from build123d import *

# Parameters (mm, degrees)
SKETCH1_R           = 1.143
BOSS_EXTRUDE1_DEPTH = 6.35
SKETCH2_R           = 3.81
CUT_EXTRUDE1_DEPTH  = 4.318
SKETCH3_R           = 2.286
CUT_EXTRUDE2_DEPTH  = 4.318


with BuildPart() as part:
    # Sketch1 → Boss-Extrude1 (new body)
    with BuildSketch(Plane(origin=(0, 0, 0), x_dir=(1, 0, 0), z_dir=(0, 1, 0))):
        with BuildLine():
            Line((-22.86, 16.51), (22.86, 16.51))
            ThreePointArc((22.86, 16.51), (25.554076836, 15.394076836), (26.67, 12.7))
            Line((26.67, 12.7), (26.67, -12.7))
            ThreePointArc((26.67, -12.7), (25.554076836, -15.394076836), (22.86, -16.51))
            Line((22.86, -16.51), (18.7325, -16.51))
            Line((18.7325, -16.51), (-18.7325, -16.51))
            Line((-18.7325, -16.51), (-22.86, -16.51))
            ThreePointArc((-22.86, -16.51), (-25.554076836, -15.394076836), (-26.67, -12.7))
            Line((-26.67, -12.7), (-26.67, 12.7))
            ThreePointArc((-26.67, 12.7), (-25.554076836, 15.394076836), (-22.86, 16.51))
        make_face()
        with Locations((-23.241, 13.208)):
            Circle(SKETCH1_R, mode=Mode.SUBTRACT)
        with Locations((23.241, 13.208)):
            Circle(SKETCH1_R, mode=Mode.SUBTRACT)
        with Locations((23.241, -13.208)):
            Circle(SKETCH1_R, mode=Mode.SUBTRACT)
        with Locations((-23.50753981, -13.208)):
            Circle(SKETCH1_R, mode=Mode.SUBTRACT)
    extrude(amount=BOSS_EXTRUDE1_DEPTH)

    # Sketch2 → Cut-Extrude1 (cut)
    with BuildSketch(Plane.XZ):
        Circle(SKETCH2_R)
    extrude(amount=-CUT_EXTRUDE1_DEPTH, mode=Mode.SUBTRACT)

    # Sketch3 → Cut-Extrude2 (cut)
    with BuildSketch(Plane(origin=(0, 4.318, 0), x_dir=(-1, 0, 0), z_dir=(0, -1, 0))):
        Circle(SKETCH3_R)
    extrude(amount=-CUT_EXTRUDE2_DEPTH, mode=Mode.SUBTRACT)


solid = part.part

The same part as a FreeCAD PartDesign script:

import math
import FreeCAD as App
import Part
import Sketcher
from FreeCAD import Vector
Q = App.Units.Quantity

doc = App.newDocument("Part")
body = doc.addObject("PartDesign::Body", "Body")

# Sketch on XZ plane
sketch1 = body.newObject("Sketcher::SketchObject", "Sketch")
sketch1.AttachmentSupport = (doc.getObject("XZ_Plane"), [""])
sketch1.MapMode = "FlatFace"
sketch1.addGeometry([
    Part.LineSegment(Vector(22.9, -16.5, 0), Vector(-22.9, -16.5, 0)),  # 0
    Part.ArcOfCircle(Part.Circle(Vector(-22.9, -12.7, 0), Vector(0, 0, 1), 3.8), math.radians(-180), math.radians(-90)),  # 1
    Part.LineSegment(Vector(-26.7, -12.7, 0), Vector(-26.7, 12.7, 0)),  # 2
    Part.ArcOfCircle(Part.Circle(Vector(-22.9, 12.7, 0), Vector(0, 0, 1), 3.8), math.radians(90), math.radians(180)),  # 3
    Part.LineSegment(Vector(-22.9, 16.5, 0), Vector(22.9, 16.5, 0)),  # 4
    Part.ArcOfCircle(Part.Circle(Vector(22.9, 12.7, 0), Vector(0, 0, 1), 3.8), math.radians(0), math.radians(90)),  # 5
    Part.LineSegment(Vector(26.7, 12.7, 0), Vector(26.7, -12.7, 0)),  # 6
    Part.ArcOfCircle(Part.Circle(Vector(22.9, -12.7, 0), Vector(0, 0, 1), 3.8), math.radians(-90), math.radians(0)),  # 7
    Part.Circle(Vector(23.2, 13.2, 0), Vector(0, 0, 1), 1.1),  # 8
    Part.Circle(Vector(-23.5, 13.2, 0), Vector(0, 0, 1), 1.1),  # 9
    Part.Circle(Vector(23.2, -13.2, 0), Vector(0, 0, 1), 1.1),  # 10
    Part.Circle(Vector(-23.2, -13.2, 0), Vector(0, 0, 1), 1.1),  # 11
], False)
sketch1.addConstraint([
    Sketcher.Constraint("Tangent", 0, 2, 1, 2),
    Sketcher.Constraint("Tangent", 1, 1, 2, 1),
    Sketcher.Constraint("Tangent", 2, 2, 3, 2),
    Sketcher.Constraint("Tangent", 3, 1, 4, 1),
    Sketcher.Constraint("Tangent", 4, 2, 5, 2),
    Sketcher.Constraint("Tangent", 5, 1, 6, 1),
    Sketcher.Constraint("Tangent", 6, 2, 7, 2),
    Sketcher.Constraint("Tangent", 7, 1, 0, 1),
    Sketcher.Constraint("Horizontal", 0),
    Sketcher.Constraint("Vertical", 2),
    Sketcher.Constraint("Horizontal", 4),
    Sketcher.Constraint("Vertical", 6),
    Sketcher.Constraint("Equal", 1, 3),
    Sketcher.Constraint("Equal", 3, 5),
    Sketcher.Constraint("Equal", 5, 7),
    Sketcher.Constraint("Equal", 8, 9),
    Sketcher.Constraint("Equal", 9, 10),
    Sketcher.Constraint("Equal", 10, 11),
    Sketcher.Constraint("Symmetric", 1, 3, 5, 3, -1, 1),
    Sketcher.Constraint("Symmetric", 8, 3, 11, 3, -1, 1),
    Sketcher.Constraint("Symmetric", 10, 3, 11, 3, -2),
    Sketcher.Constraint("Horizontal", 8, 3, 9, 3),
    Sketcher.Constraint("Diameter", 8, Q("0.09 in")),
    Sketcher.Constraint("DistanceY", 2, 1, 2, 2, Q("1 in")),
    Sketcher.Constraint("Radius", 1, Q("0.15 in")),
    Sketcher.Constraint("DistanceX", 0, 2, 0, 1, Q("1.8 in")),
    Sketcher.Constraint("DistanceY", -1, 1, 8, 3, Q("0.52 in")),
    Sketcher.Constraint("DistanceX", 11, 3, 10, 3, Q("1.83 in")),
    Sketcher.Constraint("DistanceX", 9, 3, -1, 1, 23.50754),
])
pad1 = body.newObject("PartDesign::Pad", "Pad")
pad1.Profile = sketch1
pad1.Length = Q("0.25 in")
pad1.Reversed = True

# Sketch on XZ plane
sketch2 = body.newObject("Sketcher::SketchObject", "Sketch001")
sketch2.AttachmentSupport = (doc.getObject("XZ_Plane"), [""])
sketch2.MapMode = "FlatFace"
sketch2.addGeometry(Part.Circle(Vector(0, 0, 0), Vector(0, 0, 1), 3.8), False)
sketch2.addConstraint([
    Sketcher.Constraint("Coincident", 0, 3, -1, 1),
    Sketcher.Constraint("Diameter", 0, Q("0.3 in")),
])
pocket1 = body.newObject("PartDesign::Pocket", "Pocket")
pocket1.Profile = sketch2
pocket1.Length = Q("0.17 in")

# Sketch on XZ plane
sketch3 = body.newObject("Sketcher::SketchObject", "Sketch002")
sketch3.AttachmentSupport = (doc.getObject("XZ_Plane"), [""])
sketch3.MapMode = "FlatFace"
sketch3.AttachmentOffset = App.Placement(Vector(0, 0, -0.17 * 25.4), App.Rotation())
sketch3.addGeometry(Part.Circle(Vector(0, 0, 0), Vector(0, 0, 1), 2.3), False)
sketch3.addConstraint([
    Sketcher.Constraint("Coincident", 0, 3, -1, 1),
    Sketcher.Constraint("Diameter", 0, Q("0.18 in")),
])
pocket2 = body.newObject("PartDesign::Pocket", "Pocket001")
pocket2.Profile = sketch3
pocket2.Length = Q("0.17 in")

doc.recompute()
